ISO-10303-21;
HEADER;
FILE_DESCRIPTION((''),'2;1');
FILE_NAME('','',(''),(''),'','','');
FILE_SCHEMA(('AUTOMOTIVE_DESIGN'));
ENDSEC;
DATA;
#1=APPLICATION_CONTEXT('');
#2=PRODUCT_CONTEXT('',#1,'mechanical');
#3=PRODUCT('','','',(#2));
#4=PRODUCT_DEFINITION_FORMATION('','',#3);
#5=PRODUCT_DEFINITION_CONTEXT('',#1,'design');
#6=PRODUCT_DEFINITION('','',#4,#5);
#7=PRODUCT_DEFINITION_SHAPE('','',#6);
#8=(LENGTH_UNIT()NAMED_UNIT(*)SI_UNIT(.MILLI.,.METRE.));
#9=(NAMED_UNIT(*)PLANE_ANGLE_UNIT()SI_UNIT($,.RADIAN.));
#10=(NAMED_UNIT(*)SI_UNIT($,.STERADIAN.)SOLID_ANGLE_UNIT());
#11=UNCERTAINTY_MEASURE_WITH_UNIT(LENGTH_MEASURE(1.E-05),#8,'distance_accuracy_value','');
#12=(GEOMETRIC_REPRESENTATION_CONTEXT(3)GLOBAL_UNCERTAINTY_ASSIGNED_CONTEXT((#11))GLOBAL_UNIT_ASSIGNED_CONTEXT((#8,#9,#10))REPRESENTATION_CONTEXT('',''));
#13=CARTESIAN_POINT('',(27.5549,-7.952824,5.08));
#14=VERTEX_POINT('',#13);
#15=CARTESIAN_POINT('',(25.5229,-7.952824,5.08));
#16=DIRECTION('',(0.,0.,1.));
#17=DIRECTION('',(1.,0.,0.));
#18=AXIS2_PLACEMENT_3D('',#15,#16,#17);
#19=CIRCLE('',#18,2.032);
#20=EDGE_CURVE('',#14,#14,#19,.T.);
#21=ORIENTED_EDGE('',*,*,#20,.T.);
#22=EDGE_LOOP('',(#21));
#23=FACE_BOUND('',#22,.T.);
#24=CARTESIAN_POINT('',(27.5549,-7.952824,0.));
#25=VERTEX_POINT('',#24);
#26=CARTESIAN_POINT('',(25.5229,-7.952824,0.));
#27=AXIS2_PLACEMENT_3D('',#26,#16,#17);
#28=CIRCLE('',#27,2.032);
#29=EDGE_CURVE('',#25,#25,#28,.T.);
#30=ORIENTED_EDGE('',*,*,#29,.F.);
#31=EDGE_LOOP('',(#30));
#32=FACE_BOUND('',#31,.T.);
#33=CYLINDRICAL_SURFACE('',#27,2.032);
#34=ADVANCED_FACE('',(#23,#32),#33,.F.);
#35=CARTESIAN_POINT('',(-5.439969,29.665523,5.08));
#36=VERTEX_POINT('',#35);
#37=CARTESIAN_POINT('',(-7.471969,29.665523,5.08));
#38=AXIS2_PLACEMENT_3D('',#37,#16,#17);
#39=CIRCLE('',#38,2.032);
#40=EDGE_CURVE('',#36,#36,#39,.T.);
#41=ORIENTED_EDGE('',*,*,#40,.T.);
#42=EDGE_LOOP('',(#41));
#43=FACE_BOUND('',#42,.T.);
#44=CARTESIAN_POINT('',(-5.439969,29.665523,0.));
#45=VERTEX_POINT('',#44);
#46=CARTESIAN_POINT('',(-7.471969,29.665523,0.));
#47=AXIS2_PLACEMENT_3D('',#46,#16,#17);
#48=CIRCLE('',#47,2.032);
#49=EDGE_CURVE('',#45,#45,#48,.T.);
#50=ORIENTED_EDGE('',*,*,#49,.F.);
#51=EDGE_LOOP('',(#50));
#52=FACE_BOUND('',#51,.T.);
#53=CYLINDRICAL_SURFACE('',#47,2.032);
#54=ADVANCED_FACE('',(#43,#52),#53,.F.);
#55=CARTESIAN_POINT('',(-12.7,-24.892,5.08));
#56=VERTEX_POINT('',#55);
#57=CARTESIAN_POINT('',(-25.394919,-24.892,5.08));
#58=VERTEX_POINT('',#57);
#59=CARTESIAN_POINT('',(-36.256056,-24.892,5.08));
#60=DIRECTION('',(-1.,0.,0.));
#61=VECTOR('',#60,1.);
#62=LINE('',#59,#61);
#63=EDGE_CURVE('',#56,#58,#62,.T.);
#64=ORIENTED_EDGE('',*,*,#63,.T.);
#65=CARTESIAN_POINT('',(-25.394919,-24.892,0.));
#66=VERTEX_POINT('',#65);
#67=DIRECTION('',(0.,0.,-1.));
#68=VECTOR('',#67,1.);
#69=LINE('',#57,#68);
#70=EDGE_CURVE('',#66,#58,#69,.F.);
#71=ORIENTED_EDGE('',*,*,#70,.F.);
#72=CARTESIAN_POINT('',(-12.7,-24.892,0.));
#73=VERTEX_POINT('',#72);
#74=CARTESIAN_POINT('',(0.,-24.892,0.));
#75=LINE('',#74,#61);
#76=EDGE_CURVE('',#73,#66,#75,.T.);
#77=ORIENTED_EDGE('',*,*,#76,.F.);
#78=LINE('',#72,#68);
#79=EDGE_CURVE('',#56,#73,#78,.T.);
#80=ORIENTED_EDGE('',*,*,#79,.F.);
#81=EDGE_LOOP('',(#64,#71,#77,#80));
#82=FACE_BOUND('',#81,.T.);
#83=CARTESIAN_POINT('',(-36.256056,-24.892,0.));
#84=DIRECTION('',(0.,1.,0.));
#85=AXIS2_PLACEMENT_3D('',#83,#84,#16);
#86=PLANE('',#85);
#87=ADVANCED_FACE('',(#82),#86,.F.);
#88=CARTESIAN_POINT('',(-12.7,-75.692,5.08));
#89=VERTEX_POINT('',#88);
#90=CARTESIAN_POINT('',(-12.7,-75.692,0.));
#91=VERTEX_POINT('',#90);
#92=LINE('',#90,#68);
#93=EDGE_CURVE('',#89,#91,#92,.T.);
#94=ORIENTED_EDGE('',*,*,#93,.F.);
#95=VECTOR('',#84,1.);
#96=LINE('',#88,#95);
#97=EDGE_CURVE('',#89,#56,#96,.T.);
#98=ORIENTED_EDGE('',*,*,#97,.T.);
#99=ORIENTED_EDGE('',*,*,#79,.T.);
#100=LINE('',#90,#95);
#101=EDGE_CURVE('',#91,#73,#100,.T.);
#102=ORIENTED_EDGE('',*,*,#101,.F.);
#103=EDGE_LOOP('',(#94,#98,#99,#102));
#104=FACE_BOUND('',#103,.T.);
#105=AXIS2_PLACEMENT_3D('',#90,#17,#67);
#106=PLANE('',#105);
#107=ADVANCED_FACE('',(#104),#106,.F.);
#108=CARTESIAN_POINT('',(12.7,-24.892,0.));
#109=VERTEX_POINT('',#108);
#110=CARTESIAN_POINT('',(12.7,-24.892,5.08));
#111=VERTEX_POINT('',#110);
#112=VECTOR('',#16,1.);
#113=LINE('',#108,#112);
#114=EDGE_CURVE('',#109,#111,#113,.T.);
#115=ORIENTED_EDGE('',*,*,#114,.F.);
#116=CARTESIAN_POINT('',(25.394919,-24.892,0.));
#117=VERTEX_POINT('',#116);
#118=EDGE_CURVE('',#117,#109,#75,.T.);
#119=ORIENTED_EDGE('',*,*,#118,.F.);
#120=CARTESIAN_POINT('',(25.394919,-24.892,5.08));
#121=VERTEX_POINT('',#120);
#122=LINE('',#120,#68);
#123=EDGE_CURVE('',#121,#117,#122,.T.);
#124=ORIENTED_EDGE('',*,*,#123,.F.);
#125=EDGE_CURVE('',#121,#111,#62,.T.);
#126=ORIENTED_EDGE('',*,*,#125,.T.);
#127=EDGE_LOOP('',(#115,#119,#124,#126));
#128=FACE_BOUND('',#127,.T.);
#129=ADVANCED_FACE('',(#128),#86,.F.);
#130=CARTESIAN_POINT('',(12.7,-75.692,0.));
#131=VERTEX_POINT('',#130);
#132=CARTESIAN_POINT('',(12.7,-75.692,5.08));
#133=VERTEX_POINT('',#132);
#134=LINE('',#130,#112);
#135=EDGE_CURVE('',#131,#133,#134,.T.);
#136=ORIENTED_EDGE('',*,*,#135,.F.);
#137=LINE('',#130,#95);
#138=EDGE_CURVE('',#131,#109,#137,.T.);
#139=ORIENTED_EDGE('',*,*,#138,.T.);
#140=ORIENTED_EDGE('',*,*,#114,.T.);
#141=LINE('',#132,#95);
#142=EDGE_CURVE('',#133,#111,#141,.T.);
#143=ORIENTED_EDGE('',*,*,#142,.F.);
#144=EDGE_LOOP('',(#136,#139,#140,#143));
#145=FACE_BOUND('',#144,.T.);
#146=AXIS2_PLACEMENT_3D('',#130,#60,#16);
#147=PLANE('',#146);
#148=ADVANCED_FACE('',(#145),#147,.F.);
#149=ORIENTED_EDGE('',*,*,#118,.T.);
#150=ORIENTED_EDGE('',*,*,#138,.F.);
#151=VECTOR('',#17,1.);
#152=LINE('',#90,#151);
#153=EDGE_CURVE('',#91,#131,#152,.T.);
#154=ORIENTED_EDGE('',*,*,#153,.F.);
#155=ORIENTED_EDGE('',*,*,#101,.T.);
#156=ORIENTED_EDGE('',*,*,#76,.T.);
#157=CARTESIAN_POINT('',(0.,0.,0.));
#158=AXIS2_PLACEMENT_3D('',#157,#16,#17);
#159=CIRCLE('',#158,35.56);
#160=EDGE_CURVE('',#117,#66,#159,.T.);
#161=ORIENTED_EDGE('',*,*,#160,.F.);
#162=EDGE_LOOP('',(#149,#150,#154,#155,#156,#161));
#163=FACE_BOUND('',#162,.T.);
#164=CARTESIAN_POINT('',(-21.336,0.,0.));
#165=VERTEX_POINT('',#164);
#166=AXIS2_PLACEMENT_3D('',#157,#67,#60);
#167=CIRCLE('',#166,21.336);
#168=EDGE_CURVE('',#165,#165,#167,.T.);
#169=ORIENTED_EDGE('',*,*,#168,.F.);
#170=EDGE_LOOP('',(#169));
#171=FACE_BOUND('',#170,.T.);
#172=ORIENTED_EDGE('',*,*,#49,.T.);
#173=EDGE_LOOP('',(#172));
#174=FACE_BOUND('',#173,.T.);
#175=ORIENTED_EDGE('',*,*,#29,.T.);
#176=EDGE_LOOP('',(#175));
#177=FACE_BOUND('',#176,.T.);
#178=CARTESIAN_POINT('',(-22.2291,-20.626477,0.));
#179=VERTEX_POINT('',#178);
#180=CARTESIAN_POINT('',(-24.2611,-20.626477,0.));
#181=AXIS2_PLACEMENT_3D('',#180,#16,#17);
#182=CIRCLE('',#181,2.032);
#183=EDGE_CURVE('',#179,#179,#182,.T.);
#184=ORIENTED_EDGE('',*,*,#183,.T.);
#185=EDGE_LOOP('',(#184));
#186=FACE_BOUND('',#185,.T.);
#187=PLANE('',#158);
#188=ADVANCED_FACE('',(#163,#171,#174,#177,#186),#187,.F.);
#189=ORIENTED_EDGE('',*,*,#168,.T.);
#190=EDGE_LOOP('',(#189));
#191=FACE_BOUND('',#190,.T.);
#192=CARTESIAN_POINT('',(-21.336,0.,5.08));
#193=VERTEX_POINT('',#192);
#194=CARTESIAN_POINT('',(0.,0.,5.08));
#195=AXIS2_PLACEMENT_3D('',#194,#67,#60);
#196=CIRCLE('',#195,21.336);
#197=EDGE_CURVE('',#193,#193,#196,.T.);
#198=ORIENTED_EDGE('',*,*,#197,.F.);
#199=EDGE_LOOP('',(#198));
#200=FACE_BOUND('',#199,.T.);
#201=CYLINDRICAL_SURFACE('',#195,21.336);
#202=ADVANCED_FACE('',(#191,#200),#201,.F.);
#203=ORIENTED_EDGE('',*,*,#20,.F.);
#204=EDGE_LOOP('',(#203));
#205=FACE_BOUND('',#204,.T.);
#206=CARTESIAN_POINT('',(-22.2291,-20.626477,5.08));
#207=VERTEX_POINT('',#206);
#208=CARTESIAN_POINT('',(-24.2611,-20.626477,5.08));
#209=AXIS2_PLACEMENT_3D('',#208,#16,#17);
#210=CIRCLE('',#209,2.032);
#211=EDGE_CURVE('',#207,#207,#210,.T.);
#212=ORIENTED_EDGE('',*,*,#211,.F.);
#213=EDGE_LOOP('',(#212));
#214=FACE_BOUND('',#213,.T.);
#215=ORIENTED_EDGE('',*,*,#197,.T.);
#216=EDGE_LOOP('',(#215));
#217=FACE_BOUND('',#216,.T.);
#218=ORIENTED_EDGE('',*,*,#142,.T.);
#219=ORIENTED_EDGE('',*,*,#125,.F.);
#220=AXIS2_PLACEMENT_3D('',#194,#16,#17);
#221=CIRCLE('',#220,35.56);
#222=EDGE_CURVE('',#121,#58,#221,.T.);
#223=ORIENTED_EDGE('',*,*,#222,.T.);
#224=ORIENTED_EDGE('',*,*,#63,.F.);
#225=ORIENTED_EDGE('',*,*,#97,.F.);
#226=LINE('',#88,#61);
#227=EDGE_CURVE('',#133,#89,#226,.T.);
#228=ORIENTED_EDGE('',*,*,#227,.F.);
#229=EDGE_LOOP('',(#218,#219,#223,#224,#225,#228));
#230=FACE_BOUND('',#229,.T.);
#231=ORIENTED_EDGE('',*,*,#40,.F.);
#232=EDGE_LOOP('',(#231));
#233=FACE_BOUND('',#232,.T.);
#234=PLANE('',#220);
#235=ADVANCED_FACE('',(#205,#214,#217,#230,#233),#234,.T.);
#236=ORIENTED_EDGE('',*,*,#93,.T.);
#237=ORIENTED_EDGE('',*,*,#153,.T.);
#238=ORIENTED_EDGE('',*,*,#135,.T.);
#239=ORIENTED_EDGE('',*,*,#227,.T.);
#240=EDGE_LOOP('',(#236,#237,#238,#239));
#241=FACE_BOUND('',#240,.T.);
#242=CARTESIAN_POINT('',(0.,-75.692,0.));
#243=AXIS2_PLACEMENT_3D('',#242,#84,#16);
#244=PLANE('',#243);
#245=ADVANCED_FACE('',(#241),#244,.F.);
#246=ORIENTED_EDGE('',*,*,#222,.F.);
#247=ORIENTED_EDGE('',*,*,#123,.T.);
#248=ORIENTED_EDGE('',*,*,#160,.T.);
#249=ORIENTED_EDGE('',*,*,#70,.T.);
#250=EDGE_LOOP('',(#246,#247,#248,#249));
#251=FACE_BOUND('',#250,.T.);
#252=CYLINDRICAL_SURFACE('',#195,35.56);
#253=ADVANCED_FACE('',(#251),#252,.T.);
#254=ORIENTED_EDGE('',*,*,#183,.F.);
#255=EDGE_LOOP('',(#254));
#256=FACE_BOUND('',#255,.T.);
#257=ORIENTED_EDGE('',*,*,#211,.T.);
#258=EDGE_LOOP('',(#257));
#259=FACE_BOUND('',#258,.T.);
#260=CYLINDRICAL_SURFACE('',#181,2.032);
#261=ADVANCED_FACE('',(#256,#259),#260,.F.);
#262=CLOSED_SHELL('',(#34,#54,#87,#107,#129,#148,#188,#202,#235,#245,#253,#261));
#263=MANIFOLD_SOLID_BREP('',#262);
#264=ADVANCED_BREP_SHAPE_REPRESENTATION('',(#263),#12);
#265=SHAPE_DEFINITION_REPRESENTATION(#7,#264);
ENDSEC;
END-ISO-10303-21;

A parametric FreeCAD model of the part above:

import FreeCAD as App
import Part
import Sketcher

V = App.Vector
Q = App.Units.Quantity

doc = App.newDocument("Part")
body = doc.addObject("PartDesign::Body", "Body")

# Sketch on XY plane
sketch1 = doc.addObject("Sketcher::SketchObject", "Sketch")
body.addObject(sketch1)
sketch1.AttachmentSupport = (doc.XY_Plane, [""])
sketch1.MapMode = "FlatFace"
sketch1.addGeometry(Part.Circle(V(0, 0, 0), V(0, 0, 1), 36), False)
sketch1.addConstraint([
    Sketcher.Constraint("Coincident", 0, 3, -1, 1),
    Sketcher.Constraint("Diameter", 0, Q("2.8 in")),
])
pad1 = doc.addObject("PartDesign::Pad", "Pad")
body.addObject(pad1)
pad1.Profile = sketch1
pad1.Length = Q("0.2 in")

# Sketch on XY plane
sketch2 = doc.addObject("Sketcher::SketchObject", "Sketch001")
body.addObject(sketch2)
sketch2.AttachmentSupport = (doc.XY_Plane, [""])
sketch2.MapMode = "FlatFace"
sketch2.AttachmentOffset = App.Placement(V(0, 0, 0.2 * 25.4), App.Rotation())
sketch2.addGeometry([
    Part.LineSegment(V(-36, -36, 0), V(34, -36, 0)),
    Part.LineSegment(V(34, -36, 0), V(34, -25, 0)),
    Part.LineSegment(V(34, -25, 0), V(-36, -25, 0)),
    Part.LineSegment(V(-36, -25, 0), V(-36, -36, 0)),
], False)
sketch2.addConstraint([
    Sketcher.Constraint("Coincident", 0, 2, 1, 1),
    Sketcher.Constraint("Coincident", 1, 2, 2, 1),
    Sketcher.Constraint("Coincident", 2, 2, 3, 1),
    Sketcher.Constraint("Coincident", 3, 2, 0, 1),
    Sketcher.Constraint("Horizontal", 0),
    Sketcher.Constraint("Vertical", 1),
    Sketcher.Constraint("Horizontal", 2),
    Sketcher.Constraint("Vertical", 3),
    Sketcher.Constraint("DistanceY", 1, 1, 1, 2, Q("0.42 in")),
    Sketcher.Constraint("DistanceY", 0, 2, -1, 1, Q("1.4 in")),
    Sketcher.Constraint("DistanceX", 0, 1, 0, 2, Q("70.006414 mm")),
    Sketcher.Constraint("DistanceX", -1, 1, 0, 2, Q("33.750359 mm")),
])
pocket1 = doc.addObject("PartDesign::Pocket", "Pocket")
body.addObject(pocket1)
pocket1.Profile = sketch2
pocket1.Type = "ThroughAll"

# Sketch on XY plane
sketch3 = doc.addObject("Sketcher::SketchObject", "Sketch002")
body.addObject(sketch3)
sketch3.AttachmentSupport = (doc.XY_Plane, [""])
sketch3.MapMode = "FlatFace"
sketch3.AttachmentOffset = App.Placement(V(0, 0, 0.2 * 25.4), App.Rotation())
sketch3.addGeometry([
    Part.Circle(V(-24.3, -20.6, 0), V(0, 0, 1), 2),
    Part.Circle(V(-7.5, 29.7, 0), V(0, 0, 1), 2),
    Part.Circle(V(25.5, -8, 0), V(0, 0, 1), 2),
], False)
sketch3.addConstraint([
    Sketcher.Constraint("Equal", 0, 1),
    Sketcher.Constraint("Equal", 1, 2),
    Sketcher.Constraint("Diameter", 0, Q("0.16 in")),
    Sketcher.Constraint("DistanceY", 0, 3, 1, 3, Q("1.98 in")),
    Sketcher.Constraint("DistanceX", 0, 3, 2, 3, Q("1.96 in")),
    Sketcher.Constraint("DistanceX", 0, 3, -1, 1, Q("24.2611 mm")),
    Sketcher.Constraint("DistanceX", 1, 3, -1, 1, Q("7.471969 mm")),
    Sketcher.Constraint("DistanceY", 0, 3, -1, 1, Q("20.626477 mm")),
    Sketcher.Constraint("DistanceY", 2, 3, -1, 1, Q("7.952824 mm")),
])
pocket2 = doc.addObject("PartDesign::Pocket", "Pocket001")
body.addObject(pocket2)
pocket2.Profile = sketch3
pocket2.Type = "ThroughAll"

# Sketch on XY plane
sketch4 = doc.addObject("Sketcher::SketchObject", "Sketch003")
body.addObject(sketch4)
sketch4.AttachmentSupport = (doc.XY_Plane, [""])
sketch4.MapMode = "FlatFace"
sketch4.addGeometry(Part.Circle(V(0, 0, 0), V(0, 0, 1), 21), False)
sketch4.addConstraint([
    Sketcher.Constraint("Coincident", 0, 3, -1, 1),
    Sketcher.Constraint("Diameter", 0, Q("1.68 in")),
])
pocket3 = doc.addObject("PartDesign::Pocket", "Pocket002")
body.addObject(pocket3)
pocket3.Profile = sketch4
pocket3.Type = "ThroughAll"
pocket3.Reversed = True

# Sketch on XZ plane
sketch5 = doc.addObject("Sketcher::SketchObject", "Sketch004")
body.addObject(sketch5)
sketch5.AttachmentSupport = (doc.XZ_Plane, [""])
sketch5.MapMode = "FlatFace"
sketch5.AttachmentOffset = App.Placement(V(0, 0, 0.98 * 25.4), App.Rotation())
sketch5.addGeometry([
    Part.LineSegment(V(-13, 5, 0), V(-13, 0, 0)),
    Part.LineSegment(V(-13, 0, 0), V(13, 0, 0)),
    Part.LineSegment(V(13, 0, 0), V(13, 5, 0)),
    Part.LineSegment(V(13, 5, 0), V(-13, 5, 0)),
], False)
sketch5.addConstraint([
    Sketcher.Constraint("Coincident", 0, 2, 1, 1),
    Sketcher.Constraint("Coincident", 1, 2, 2, 1),
    Sketcher.Constraint("Coincident", 2, 2, 3, 1),
    Sketcher.Constraint("Coincident", 3, 2, 0, 1),
    Sketcher.Constraint("Vertical", 0),
    Sketcher.Constraint("Horizontal", 1),
    Sketcher.Constraint("Vertical", 2),
    Sketcher.Constraint("Horizontal", 3),
    Sketcher.Constraint("Symmetric", 0, 2, 1, 2, -1, 1),
    Sketcher.Constraint("DistanceX", 1, 1, 1, 2, Q("1 in")),
    Sketcher.Constraint("DistanceY", 0, 2, 0, 1, Q("0.2 in")),
])
pad2 = doc.addObject("PartDesign::Pad", "Pad001")
body.addObject(pad2)
pad2.Profile = sketch5
pad2.Length = Q("2 in")

doc.recompute()
